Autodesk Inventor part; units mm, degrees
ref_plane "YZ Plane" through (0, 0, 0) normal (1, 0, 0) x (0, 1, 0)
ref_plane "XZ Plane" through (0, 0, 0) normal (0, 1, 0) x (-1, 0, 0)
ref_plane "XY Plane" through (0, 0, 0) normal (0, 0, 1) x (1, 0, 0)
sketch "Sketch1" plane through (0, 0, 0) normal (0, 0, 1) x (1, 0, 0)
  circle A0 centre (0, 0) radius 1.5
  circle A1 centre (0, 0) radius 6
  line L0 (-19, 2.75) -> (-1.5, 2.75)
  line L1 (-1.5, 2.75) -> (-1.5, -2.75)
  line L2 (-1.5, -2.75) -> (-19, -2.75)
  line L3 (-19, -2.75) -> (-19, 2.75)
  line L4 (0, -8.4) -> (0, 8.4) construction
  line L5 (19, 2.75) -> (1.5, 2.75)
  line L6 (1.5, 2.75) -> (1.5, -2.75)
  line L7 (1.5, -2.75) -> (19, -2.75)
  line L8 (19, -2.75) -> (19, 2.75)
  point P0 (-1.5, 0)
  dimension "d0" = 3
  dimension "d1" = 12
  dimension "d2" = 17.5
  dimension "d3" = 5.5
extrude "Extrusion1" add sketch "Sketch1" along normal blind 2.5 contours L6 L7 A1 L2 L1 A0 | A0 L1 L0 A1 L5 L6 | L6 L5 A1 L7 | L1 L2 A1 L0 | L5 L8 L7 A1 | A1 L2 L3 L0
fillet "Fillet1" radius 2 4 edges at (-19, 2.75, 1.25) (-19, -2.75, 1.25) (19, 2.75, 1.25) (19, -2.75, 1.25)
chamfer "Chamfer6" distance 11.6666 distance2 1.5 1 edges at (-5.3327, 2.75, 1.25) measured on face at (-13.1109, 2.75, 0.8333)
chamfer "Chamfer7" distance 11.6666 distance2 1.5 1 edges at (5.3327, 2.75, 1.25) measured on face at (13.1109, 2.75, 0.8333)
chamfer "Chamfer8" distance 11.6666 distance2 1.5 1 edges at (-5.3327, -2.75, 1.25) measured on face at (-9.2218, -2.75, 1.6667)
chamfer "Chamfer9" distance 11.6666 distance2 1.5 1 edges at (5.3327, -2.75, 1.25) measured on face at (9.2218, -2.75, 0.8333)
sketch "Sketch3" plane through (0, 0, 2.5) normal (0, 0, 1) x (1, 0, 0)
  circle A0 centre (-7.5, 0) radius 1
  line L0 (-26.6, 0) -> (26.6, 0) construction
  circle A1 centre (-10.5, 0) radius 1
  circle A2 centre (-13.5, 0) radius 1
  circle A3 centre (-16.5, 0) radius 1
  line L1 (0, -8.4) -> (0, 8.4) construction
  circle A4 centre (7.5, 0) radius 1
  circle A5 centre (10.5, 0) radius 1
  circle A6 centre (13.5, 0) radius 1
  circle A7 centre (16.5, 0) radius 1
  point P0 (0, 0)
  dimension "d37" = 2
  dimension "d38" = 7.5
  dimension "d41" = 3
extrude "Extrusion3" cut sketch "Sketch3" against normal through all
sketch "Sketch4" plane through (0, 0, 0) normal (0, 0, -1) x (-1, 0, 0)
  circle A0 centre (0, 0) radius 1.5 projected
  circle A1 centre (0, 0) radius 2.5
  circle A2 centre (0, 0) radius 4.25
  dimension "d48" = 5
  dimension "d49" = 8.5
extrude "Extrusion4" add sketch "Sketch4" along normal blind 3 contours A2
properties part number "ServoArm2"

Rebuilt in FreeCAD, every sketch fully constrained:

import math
import FreeCAD as App
import Part
import Sketcher

V = App.Vector
Q = App.Units.Quantity


def edges_at(feature, points):
    """Names of the edges that pass closest to the given points."""
    edges = feature.Shape.Edges
    near = lambda p: min(range(len(edges)), key=lambda i: edges[i].distToShape(Part.Vertex(*p))[0])
    return sorted({f"Edge{near(p) + 1}" for p in points})

doc = App.newDocument("Part")
body = doc.addObject("PartDesign::Body", "Body")

# Sketch on XY plane
sketch1 = body.newObject("Sketcher::SketchObject", "Sketch")
sketch1.AttachmentSupport = (doc.getObject("XY_Plane"), [""])
sketch1.MapMode = "FlatFace"
sketch1.addGeometry(Part.ArcOfCircle(Part.Circle(V(0, 0, 0), V(0, 0, 1), 6), math.radians(-153), math.radians(-27)), False)
sketch1.addGeometry(Part.LineSegment(V(5.3, -2.8, 0), V(19, -2.8, 0)), False)
sketch1.addGeometry(Part.LineSegment(V(19, -2.8, 0), V(19, 2.8, 0)), False)
sketch1.addGeometry(Part.LineSegment(V(19, 2.8, 0), V(5.3, 2.8, 0)), False)
sketch1.addGeometry(Part.ArcOfCircle(Part.Circle(V(0, 0, 0), V(0, 0, 1), 6), math.radians(27), math.radians(153)), False)
sketch1.addGeometry(Part.LineSegment(V(-5.3, 2.8, 0), V(-19, 2.8, 0)), False)
sketch1.addGeometry(Part.LineSegment(V(-19, 2.8, 0), V(-19, -2.8, 0)), False)
sketch1.addGeometry(Part.LineSegment(V(-19, -2.8, 0), V(-5.3, -2.8, 0)), False)
sketch1.addGeometry(Part.Circle(V(0, 0, 0), V(0, 0, 1), 1.5), False)
sketch1.addConstraint(Sketcher.Constraint("Coincident", 0, 2, 1, 1))
sketch1.addConstraint(Sketcher.Constraint("Coincident", 1, 2, 2, 1))
sketch1.addConstraint(Sketcher.Constraint("Coincident", 2, 2, 3, 1))
sketch1.addConstraint(Sketcher.Constraint("Coincident", 3, 2, 4, 1))
sketch1.addConstraint(Sketcher.Constraint("Coincident", 4, 2, 5, 1))
sketch1.addConstraint(Sketcher.Constraint("Coincident", 5, 2, 6, 1))
sketch1.addConstraint(Sketcher.Constraint("Coincident", 6, 2, 7, 1))
sketch1.addConstraint(Sketcher.Constraint("Coincident", 7, 2, 0, 1))
sketch1.addConstraint(Sketcher.Constraint("Horizontal", 1))
sketch1.addConstraint(Sketcher.Constraint("Vertical", 2))
sketch1.addConstraint(Sketcher.Constraint("Horizontal", 3))
sketch1.addConstraint(Sketcher.Constraint("Horizontal", 5))
sketch1.addConstraint(Sketcher.Constraint("Vertical", 6))
sketch1.addConstraint(Sketcher.Constraint("Horizontal", 7))
sketch1.addConstraint(Sketcher.Constraint("Coincident", 0, 3, -1, 1))
sketch1.addConstraint(Sketcher.Constraint("Coincident", 4, 3, -1, 1))
sketch1.addConstraint(Sketcher.Constraint("Coincident", 8, 3, -1, 1))
sketch1.addConstraint(Sketcher.Constraint("Equal", 0, 4))
sketch1.addConstraint(Sketcher.Constraint("Symmetric", 1, 2, 5, 2, -1, 1))
sketch1.addConstraint(Sketcher.Constraint("Horizontal", 3, 2, 4, 2))
sketch1.addConstraint(Sketcher.Constraint("Horizontal", 1, 2, 6, 2))
sketch1.addConstraint(Sketcher.Constraint("Diameter", 8, Q("3 mm")))
sketch1.addConstraint(Sketcher.Constraint("Radius", 0, Q("6 mm")))
sketch1.addConstraint(Sketcher.Constraint("DistanceY", 2, 1, 2, 2, Q("5.5 mm")))
sketch1.addConstraint(Sketcher.Constraint("DistanceX", -1, 1, 1, 2, Q("19 mm")))
pad1 = body.newObject("PartDesign::Pad", "Pad")
pad1.Profile = sketch1
pad1.Length = 2.5
doc.recompute()

fillet = body.newObject("PartDesign::Fillet", "Fillet")
fillet.Base = (pad1, edges_at(pad1, [
    (-19, 2.75, 1.25),
    (-19, -2.75, 1.25),
    (19, 2.75, 1.25),
    (19, -2.75, 1.25),
]))
fillet.Radius = 2
doc.recompute()

chamfer = body.newObject("PartDesign::Chamfer", "Chamfer")
chamfer.Base = (fillet, edges_at(fillet, [(-5.333, 2.75, 1.25)]))
chamfer.ChamferType = "Two distances"
chamfer.Size = 11.6666
chamfer.Size2 = 1.5
chamfer.FlipDirection = True
doc.recompute()

chamfer2 = body.newObject("PartDesign::Chamfer", "Chamfer001")
chamfer2.Base = (chamfer, edges_at(chamfer, [(5.333, 2.75, 1.25)]))
chamfer2.ChamferType = "Two distances"
chamfer2.Size = 11.6666
chamfer2.Size2 = 1.5
chamfer2.FlipDirection = True
doc.recompute()

chamfer3 = body.newObject("PartDesign::Chamfer", "Chamfer002")
chamfer3.Base = (chamfer2, edges_at(chamfer2, [(-5.333, -2.75, 1.25)]))
chamfer3.ChamferType = "Two distances"
chamfer3.Size = 11.6666
chamfer3.Size2 = 1.5
doc.recompute()

chamfer4 = body.newObject("PartDesign::Chamfer", "Chamfer003")
chamfer4.Base = (chamfer3, edges_at(chamfer3, [(5.333, -2.75, 1.25)]))
chamfer4.ChamferType = "Two distances"
chamfer4.Size = 11.6666
chamfer4.Size2 = 1.5
chamfer4.FlipDirection = True

# Sketch on XY plane
sketch2 = body.newObject("Sketcher::SketchObject", "Sketch001")
sketch2.AttachmentSupport = (doc.getObject("XY_Plane"), [""])
sketch2.MapMode = "FlatFace"
sketch2.AttachmentOffset = App.Placement(V(0, 0, 2.5), App.Rotation())
sketch2.addGeometry(Part.Circle(V(-7.5, 0, 0), V(0, 0, 1), 1), False)
sketch2.addGeometry(Part.Circle(V(-10.5, 0, 0), V(0, 0, 1), 1), False)
sketch2.addGeometry(Part.Circle(V(-13.5, 0, 0), V(0, 0, 1), 1), False)
sketch2.addGeometry(Part.Circle(V(-16.5, 0, 0), V(0, 0, 1), 1), False)
sketch2.addGeometry(Part.Circle(V(7.5, 0, 0), V(0, 0, 1), 1), False)
sketch2.addGeometry(Part.Circle(V(10.5, 0, 0), V(0, 0, 1), 1), False)
sketch2.addGeometry(Part.Circle(V(13.5, 0, 0), V(0, 0, 1), 1), False)
sketch2.addGeometry(Part.Circle(V(16.5, 0, 0), V(0, 0, 1), 1), False)
sketch2.addConstraint(Sketcher.Constraint("Equal", 0, 1))
sketch2.addConstraint(Sketcher.Constraint("Equal", 1, 2))
sketch2.addConstraint(Sketcher.Constraint("Equal", 2, 3))
sketch2.addConstraint(Sketcher.Constraint("Equal", 3, 4))
sketch2.addConstraint(Sketcher.Constraint("Equal", 4, 5))
sketch2.addConstraint(Sketcher.Constraint("Equal", 5, 6))
sketch2.addConstraint(Sketcher.Constraint("Equal", 6, 7))
sketch2.addConstraint(Sketcher.Constraint("Symmetric", 0, 3, 4, 3, -1, 1))
sketch2.addConstraint(Sketcher.Constraint("Symmetric", 1, 3, 5, 3, -1, 1))
sketch2.addConstraint(Sketcher.Constraint("Symmetric", 2, 3, 6, 3, -1, 1))
sketch2.addConstraint(Sketcher.Constraint("Symmetric", 3, 3, 7, 3, -1, 1))
sketch2.addConstraint(Sketcher.Constraint("PointOnObject", 0, 3, -1))
sketch2.addConstraint(Sketcher.Constraint("PointOnObject", 1, 3, -1))
sketch2.addConstraint(Sketcher.Constraint("PointOnObject", 2, 3, -1))
sketch2.addConstraint(Sketcher.Constraint("PointOnObject", 3, 3, -1))
sketch2.addConstraint(Sketcher.Constraint("Diameter", 0, Q("2 mm")))
sketch2.addConstraint(Sketcher.Constraint("DistanceX", 1, 3, 0, 3, Q("3 mm")))
sketch2.addConstraint(Sketcher.Constraint("DistanceX", 2, 3, 1, 3, Q("3 mm")))
sketch2.addConstraint(Sketcher.Constraint("DistanceX", 3, 3, 2, 3, Q("3 mm")))
sketch2.addConstraint(Sketcher.Constraint("DistanceX", 0, 3, -1, 1, Q("7.5 mm")))
pocket1 = body.newObject("PartDesign::Pocket", "Pocket")
pocket1.Profile = sketch2
pocket1.Type = "ThroughAll"

# Sketch on XY plane
sketch3 = body.newObject("Sketcher::SketchObject", "Sketch002")
sketch3.AttachmentSupport = (doc.getObject("XY_Plane"), [""])
sketch3.MapMode = "FlatFace"
sketch3.addGeometry(Part.Circle(V(0, 0, 0), V(0, 0, 1), 4.2), False)
sketch3.addGeometry(Part.Circle(V(0, 0, 0), V(0, 0, 1), 2.5), False)
sketch3.addConstraint(Sketcher.Constraint("Coincident", 0, 3, -1, 1))
sketch3.addConstraint(Sketcher.Constraint("Coincident", 1, 3, -1, 1))
sketch3.addConstraint(Sketcher.Constraint("Diameter", 1, Q("5 mm")))
sketch3.addConstraint(Sketcher.Constraint("Diameter", 0, Q("8.5 mm")))
pad2 = body.newObject("PartDesign::Pad", "Pad001")
pad2.Profile = sketch3
pad2.Length = 3
pad2.Reversed = True

doc.recompute()
